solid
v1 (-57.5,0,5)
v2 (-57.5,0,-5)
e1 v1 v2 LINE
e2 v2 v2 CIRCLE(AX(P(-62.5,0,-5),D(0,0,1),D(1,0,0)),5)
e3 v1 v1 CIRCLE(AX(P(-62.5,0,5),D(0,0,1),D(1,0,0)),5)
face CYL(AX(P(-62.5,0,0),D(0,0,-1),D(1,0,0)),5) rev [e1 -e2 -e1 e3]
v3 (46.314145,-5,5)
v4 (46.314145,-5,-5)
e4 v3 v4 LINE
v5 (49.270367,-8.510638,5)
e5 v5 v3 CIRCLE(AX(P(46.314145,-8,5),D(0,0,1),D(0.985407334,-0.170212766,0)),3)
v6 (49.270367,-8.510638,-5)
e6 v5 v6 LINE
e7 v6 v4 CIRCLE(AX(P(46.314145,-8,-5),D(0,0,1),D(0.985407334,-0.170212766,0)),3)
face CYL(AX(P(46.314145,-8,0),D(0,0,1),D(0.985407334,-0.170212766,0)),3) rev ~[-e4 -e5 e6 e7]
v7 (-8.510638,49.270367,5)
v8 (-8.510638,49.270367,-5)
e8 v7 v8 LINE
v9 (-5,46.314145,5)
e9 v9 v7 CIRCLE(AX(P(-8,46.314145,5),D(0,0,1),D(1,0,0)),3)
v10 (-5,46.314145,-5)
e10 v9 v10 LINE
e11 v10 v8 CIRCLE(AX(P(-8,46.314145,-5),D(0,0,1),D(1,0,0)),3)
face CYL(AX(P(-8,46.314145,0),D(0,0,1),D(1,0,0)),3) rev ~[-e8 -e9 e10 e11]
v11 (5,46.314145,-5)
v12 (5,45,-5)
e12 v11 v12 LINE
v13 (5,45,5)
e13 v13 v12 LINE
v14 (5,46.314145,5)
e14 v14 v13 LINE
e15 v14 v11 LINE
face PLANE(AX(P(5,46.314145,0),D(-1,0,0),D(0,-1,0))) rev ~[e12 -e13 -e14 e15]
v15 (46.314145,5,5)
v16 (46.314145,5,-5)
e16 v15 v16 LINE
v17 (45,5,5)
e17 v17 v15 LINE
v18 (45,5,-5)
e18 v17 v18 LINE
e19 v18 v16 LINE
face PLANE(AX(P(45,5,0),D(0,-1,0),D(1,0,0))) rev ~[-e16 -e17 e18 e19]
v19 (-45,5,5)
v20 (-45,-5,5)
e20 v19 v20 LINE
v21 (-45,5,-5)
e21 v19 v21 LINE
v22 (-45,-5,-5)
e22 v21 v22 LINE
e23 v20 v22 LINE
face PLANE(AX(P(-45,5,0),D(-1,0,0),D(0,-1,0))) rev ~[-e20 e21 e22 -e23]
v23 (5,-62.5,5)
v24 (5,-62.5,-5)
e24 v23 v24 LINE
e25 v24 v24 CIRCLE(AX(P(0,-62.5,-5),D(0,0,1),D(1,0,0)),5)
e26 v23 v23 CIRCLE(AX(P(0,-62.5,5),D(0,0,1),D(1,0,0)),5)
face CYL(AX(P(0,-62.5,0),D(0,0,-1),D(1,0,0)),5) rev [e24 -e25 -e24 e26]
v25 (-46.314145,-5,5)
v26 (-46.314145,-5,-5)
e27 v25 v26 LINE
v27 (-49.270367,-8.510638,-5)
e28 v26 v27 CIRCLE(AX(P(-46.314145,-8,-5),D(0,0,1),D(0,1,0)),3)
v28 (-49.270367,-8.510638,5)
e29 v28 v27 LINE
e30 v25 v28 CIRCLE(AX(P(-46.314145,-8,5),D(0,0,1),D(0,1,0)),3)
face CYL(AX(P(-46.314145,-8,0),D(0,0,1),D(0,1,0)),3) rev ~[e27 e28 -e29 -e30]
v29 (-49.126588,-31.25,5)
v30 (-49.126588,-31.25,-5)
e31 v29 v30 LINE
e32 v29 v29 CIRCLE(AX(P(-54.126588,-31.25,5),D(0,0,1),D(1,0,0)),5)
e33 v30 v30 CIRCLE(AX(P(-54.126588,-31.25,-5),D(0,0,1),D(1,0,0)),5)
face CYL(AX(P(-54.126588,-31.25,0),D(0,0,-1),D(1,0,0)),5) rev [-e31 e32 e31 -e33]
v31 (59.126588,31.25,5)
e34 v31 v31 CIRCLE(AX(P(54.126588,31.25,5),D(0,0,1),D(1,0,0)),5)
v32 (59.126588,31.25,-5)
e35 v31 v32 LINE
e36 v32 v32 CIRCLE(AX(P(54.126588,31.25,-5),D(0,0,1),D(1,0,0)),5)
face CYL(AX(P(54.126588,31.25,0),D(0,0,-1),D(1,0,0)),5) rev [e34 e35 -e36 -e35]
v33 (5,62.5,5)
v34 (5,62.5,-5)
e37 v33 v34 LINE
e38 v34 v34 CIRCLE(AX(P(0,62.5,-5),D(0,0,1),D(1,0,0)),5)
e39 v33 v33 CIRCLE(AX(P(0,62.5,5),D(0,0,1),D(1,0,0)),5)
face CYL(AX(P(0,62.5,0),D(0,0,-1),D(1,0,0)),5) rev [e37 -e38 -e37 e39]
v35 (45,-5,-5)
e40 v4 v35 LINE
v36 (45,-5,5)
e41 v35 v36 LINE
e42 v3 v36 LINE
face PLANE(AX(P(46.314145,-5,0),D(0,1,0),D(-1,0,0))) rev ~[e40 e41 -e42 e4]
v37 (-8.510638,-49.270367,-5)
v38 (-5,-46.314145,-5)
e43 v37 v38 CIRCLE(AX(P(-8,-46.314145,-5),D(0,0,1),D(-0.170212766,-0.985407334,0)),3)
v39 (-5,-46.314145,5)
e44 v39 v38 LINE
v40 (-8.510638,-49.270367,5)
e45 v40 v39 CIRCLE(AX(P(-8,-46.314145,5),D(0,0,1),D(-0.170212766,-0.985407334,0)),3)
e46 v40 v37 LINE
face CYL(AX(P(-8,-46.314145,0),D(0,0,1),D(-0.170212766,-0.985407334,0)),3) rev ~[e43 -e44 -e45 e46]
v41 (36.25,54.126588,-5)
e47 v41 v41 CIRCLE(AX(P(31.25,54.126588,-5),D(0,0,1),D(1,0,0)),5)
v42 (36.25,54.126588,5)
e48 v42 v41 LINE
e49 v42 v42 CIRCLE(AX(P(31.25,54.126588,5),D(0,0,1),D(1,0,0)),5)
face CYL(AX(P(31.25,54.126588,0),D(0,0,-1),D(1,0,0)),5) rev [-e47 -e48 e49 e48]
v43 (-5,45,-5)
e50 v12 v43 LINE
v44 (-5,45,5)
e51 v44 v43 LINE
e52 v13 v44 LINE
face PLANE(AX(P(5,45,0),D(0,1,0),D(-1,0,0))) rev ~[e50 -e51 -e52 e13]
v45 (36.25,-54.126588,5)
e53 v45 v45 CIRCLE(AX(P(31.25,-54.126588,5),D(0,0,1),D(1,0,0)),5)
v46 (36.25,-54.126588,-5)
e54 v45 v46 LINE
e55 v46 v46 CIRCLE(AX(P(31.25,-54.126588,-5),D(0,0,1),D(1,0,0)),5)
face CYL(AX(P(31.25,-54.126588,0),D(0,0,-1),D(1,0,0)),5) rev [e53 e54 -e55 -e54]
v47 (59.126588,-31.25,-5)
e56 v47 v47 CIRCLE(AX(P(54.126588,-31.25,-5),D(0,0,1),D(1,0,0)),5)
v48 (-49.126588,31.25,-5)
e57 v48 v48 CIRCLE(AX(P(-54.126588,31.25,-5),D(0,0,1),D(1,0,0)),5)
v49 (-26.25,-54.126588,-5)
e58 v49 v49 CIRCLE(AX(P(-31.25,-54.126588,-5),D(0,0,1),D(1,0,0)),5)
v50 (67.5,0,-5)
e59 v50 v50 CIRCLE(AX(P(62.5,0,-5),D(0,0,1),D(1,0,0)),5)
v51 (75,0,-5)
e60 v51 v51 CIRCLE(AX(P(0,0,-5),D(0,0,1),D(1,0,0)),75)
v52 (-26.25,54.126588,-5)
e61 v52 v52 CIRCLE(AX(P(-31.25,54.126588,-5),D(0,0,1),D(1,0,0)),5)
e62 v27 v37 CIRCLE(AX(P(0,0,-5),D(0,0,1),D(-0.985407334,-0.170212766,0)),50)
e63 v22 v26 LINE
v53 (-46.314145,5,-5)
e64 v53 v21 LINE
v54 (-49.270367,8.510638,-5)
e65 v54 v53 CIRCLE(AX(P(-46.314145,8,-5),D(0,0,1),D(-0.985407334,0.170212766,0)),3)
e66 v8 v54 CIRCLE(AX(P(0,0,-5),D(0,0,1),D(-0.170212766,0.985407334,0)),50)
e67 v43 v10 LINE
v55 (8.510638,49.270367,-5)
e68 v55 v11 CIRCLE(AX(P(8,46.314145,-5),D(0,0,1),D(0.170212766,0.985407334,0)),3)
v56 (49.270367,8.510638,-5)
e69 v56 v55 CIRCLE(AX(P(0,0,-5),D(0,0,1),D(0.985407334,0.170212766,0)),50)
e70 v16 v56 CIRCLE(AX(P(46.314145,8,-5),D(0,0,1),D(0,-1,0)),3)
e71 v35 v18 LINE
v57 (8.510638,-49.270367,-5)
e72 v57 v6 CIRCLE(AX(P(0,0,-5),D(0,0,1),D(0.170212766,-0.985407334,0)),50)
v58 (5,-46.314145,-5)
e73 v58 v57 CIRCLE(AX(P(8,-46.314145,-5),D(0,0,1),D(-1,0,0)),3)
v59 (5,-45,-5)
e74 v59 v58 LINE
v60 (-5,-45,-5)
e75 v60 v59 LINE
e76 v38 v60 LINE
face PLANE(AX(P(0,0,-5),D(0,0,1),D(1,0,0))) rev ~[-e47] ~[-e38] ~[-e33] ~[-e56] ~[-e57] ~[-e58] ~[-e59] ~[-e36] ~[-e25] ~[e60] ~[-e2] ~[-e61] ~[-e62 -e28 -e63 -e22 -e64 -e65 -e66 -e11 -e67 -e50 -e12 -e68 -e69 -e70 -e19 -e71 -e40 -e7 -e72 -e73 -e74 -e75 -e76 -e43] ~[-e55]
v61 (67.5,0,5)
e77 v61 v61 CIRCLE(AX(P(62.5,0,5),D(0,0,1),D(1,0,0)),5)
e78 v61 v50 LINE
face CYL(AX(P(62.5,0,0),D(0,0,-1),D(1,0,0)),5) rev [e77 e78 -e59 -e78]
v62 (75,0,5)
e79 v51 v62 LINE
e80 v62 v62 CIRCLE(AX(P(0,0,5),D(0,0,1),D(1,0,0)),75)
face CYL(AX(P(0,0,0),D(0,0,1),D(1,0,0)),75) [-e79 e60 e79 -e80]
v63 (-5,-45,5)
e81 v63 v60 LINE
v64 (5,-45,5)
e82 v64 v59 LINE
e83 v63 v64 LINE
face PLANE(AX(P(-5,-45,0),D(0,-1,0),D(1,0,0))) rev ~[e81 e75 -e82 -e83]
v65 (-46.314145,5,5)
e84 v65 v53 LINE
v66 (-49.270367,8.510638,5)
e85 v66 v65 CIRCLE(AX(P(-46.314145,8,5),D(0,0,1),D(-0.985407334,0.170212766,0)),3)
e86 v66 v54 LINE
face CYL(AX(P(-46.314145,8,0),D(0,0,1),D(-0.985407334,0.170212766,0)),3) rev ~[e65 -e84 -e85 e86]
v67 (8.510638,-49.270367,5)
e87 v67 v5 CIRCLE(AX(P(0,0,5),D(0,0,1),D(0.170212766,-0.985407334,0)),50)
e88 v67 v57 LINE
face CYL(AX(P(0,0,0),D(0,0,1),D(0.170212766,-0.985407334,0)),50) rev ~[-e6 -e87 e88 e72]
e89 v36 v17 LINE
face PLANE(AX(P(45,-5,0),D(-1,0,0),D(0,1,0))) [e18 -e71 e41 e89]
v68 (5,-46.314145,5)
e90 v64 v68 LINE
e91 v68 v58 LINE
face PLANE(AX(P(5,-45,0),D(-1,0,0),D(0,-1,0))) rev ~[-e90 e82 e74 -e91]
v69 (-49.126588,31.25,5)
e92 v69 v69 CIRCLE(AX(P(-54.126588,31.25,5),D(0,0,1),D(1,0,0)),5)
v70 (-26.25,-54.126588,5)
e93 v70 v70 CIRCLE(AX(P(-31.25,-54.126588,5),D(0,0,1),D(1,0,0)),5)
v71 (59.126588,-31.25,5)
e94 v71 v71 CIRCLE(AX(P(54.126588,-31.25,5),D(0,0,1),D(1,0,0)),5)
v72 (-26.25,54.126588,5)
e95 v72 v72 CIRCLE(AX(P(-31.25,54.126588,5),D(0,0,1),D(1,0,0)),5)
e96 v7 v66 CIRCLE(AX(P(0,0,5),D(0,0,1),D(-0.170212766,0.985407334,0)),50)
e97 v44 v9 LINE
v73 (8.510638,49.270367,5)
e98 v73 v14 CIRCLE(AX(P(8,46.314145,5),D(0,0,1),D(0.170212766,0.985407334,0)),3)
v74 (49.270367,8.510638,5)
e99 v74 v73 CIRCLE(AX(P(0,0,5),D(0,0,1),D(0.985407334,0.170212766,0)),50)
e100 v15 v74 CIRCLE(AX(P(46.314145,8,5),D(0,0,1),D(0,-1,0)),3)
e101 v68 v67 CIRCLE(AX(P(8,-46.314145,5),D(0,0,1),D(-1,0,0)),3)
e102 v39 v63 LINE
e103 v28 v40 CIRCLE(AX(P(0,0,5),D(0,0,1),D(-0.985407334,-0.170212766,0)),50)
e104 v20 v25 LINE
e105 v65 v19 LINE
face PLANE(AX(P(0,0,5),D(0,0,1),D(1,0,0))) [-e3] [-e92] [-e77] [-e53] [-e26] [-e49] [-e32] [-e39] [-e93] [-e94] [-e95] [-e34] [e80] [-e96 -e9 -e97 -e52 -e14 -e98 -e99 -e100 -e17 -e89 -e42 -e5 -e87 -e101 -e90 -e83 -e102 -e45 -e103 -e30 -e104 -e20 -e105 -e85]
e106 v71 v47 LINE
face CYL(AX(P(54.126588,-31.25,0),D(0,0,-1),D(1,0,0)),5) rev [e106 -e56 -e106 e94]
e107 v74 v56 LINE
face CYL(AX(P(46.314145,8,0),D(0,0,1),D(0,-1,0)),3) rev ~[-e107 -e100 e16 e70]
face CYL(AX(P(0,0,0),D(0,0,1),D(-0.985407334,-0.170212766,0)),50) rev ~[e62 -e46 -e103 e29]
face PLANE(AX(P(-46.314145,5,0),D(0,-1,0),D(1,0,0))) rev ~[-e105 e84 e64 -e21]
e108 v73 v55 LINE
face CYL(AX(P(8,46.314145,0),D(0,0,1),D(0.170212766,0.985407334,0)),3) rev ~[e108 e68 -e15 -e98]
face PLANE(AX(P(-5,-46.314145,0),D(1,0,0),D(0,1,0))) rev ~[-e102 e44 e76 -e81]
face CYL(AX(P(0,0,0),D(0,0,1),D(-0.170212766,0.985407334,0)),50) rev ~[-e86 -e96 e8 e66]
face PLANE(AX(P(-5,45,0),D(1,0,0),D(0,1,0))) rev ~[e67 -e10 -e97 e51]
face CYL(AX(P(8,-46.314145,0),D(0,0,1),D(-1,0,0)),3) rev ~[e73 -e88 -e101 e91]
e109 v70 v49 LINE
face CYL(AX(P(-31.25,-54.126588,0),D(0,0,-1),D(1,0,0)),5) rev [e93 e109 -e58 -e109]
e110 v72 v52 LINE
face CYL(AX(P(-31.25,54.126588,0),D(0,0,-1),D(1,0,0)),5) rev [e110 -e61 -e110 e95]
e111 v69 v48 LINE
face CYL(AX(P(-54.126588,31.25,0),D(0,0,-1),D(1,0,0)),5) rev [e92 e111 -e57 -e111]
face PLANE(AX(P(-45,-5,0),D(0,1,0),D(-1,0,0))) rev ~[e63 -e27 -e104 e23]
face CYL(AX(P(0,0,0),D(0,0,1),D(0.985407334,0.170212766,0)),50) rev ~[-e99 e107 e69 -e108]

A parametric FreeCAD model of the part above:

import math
import FreeCAD as App
import Part
import Sketcher
from FreeCAD import Vector
Q = App.Units.Quantity

doc = App.newDocument("Part")
body = doc.addObject("PartDesign::Body", "Body")

# Sketch on XY plane
sketch1 = body.newObject("Sketcher::SketchObject", "Sketch")
sketch1.AttachmentSupport = (doc.getObject("XY_Plane"), [""])
sketch1.MapMode = "FlatFace"
sketch1.addGeometry(Part.Circle(Vector(0, 0, 0), Vector(0, 0, 1), 75), False)
sketch1.addGeometry(Part.Circle(Vector(-31.2, -54.1, 0), Vector(0, 0, 1), 5), False)
sketch1.addGeometry(Part.Circle(Vector(-54.1, -31.2, 0), Vector(0, 0, 1), 5), False)
sketch1.addGeometry(Part.Circle(Vector(0, -62.5, 0), Vector(0, 0, 1), 5), False)
sketch1.addGeometry(Part.Circle(Vector(31.2, -54.1, 0), Vector(0, 0, 1), 5), False)
sketch1.addGeometry(Part.Circle(Vector(54.1, -31.2, 0), Vector(0, 0, 1), 5), False)
sketch1.addGeometry(Part.Circle(Vector(-62.5, 0, 0), Vector(0, 0, 1), 5), False)
sketch1.addGeometry(Part.Circle(Vector(-54.1, 31.2, 0), Vector(0, 0, 1), 5), False)
sketch1.addGeometry(Part.Circle(Vector(-31.2, 54.1, 0), Vector(0, 0, 1), 5), False)
sketch1.addGeometry(Part.LineSegment(Vector(46.3, 5, 0), Vector(45, 5, 0)), False)
sketch1.addGeometry(Part.LineSegment(Vector(45, 5, 0), Vector(45, -5, 0)), False)
sketch1.addGeometry(Part.LineSegment(Vector(45, -5, 0), Vector(46.3, -5, 0)), False)
sketch1.addGeometry(Part.ArcOfCircle(Part.Circle(Vector(46.3, -8, 0), Vector(0, 0, 1), 3), math.radians(-10), math.radians(90)), False)
sketch1.addGeometry(Part.ArcOfCircle(Part.Circle(Vector(0, 0, 0), Vector(0, 0, 1), 50), math.radians(-80), math.radians(-10)), False)
sketch1.addGeometry(Part.ArcOfCircle(Part.Circle(Vector(8, -46.3, 0), Vector(0, 0, 1), 3), math.radians(180), math.radians(280)), False)
sketch1.addGeometry(Part.LineSegment(Vector(5, -46.3, 0), Vector(5, -45, 0)), False)
sketch1.addGeometry(Part.LineSegment(Vector(5, -45, 0), Vector(-5, -45, 0)), False)
sketch1.addGeometry(Part.LineSegment(Vector(-5, -45, 0), Vector(-5, -46.3, 0)), False)
sketch1.addGeometry(Part.ArcOfCircle(Part.Circle(Vector(-8, -46.3, 0), Vector(0, 0, 1), 3), math.radians(-100), math.radians(0)), False)
sketch1.addGeometry(Part.ArcOfCircle(Part.Circle(Vector(0, 0, 0), Vector(0, 0, 1), 50), math.radians(-170), math.radians(-100)), False)
sketch1.addGeometry(Part.ArcOfCircle(Part.Circle(Vector(-46.3, -8, 0), Vector(0, 0, 1), 3), math.radians(90), math.radians(190)), False)
sketch1.addGeometry(Part.LineSegment(Vector(-46.3, -5, 0), Vector(-45, -5, 0)), False)
sketch1.addGeometry(Part.LineSegment(Vector(-45, -5, 0), Vector(-45, 5, 0)), False)
sketch1.addGeometry(Part.LineSegment(Vector(-45, 5, 0), Vector(-46.3, 5, 0)), False)
sketch1.addGeometry(Part.ArcOfCircle(Part.Circle(Vector(-46.3, 8, 0), Vector(0, 0, 1), 3), math.radians(170), math.radians(270)), False)
sketch1.addGeometry(Part.ArcOfCircle(Part.Circle(Vector(0, 0, 0), Vector(0, 0, 1), 50), math.radians(100), math.radians(170)), False)
sketch1.addGeometry(Part.ArcOfCircle(Part.Circle(Vector(-8, 46.3, 0), Vector(0, 0, 1), 3), math.radians(0), math.radians(100)), False)
sketch1.addGeometry(Part.LineSegment(Vector(-5, 46.3, 0), Vector(-5, 45, 0)), False)
sketch1.addGeometry(Part.LineSegment(Vector(-5, 45, 0), Vector(5, 45, 0)), False)
sketch1.addGeometry(Part.LineSegment(Vector(5, 45, 0), Vector(5, 46.3, 0)), False)
sketch1.addGeometry(Part.ArcOfCircle(Part.Circle(Vector(8, 46.3, 0), Vector(0, 0, 1), 3), math.radians(80), math.radians(180)), False)
sketch1.addGeometry(Part.ArcOfCircle(Part.Circle(Vector(0, 0, 0), Vector(0, 0, 1), 50), math.radians(10), math.radians(80)), False)
sketch1.addGeometry(Part.ArcOfCircle(Part.Circle(Vector(46.3, 8, 0), Vector(0, 0, 1), 3), math.radians(-90), math.radians(10)), False)
sketch1.addGeometry(Part.Circle(Vector(62.5, 0, 0), Vector(0, 0, 1), 5), False)
sketch1.addGeometry(Part.Circle(Vector(54.1, 31.2, 0), Vector(0, 0, 1), 5), False)
sketch1.addGeometry(Part.Circle(Vector(0, 62.5, 0), Vector(0, 0, 1), 5), False)
sketch1.addGeometry(Part.Circle(Vector(31.2, 54.1, 0), Vector(0, 0, 1), 5), False)
sketch1.addConstraint(Sketcher.Constraint("Coincident", 9, 2, 10, 1))
sketch1.addConstraint(Sketcher.Constraint("Coincident", 10, 2, 11, 1))
sketch1.addConstraint(Sketcher.Constraint("Tangent", 11, 2, 12, 2))
sketch1.addConstraint(Sketcher.Constraint("Tangent", 12, 1, 13, 2))
sketch1.addConstraint(Sketcher.Constraint("Tangent", 13, 1, 14, 2))
sketch1.addConstraint(Sketcher.Constraint("Tangent", 14, 1, 15, 1))
sketch1.addConstraint(Sketcher.Constraint("Coincident", 15, 2, 16, 1))
sketch1.addConstraint(Sketcher.Constraint("Coincident", 16, 2, 17, 1))
sketch1.addConstraint(Sketcher.Constraint("Tangent", 17, 2, 18, 2))
sketch1.addConstraint(Sketcher.Constraint("Tangent", 18, 1, 19, 2))
sketch1.addConstraint(Sketcher.Constraint("Tangent", 19, 1, 20, 2))
sketch1.addConstraint(Sketcher.Constraint("Tangent", 20, 1, 21, 1))
sketch1.addConstraint(Sketcher.Constraint("Coincident", 21, 2, 22, 1))
sketch1.addConstraint(Sketcher.Constraint("Coincident", 22, 2, 23, 1))
sketch1.addConstraint(Sketcher.Constraint("Tangent", 23, 2, 24, 2))
sketch1.addConstraint(Sketcher.Constraint("Tangent", 24, 1, 25, 2))
sketch1.addConstraint(Sketcher.Constraint("Tangent", 25, 1, 26, 2))
sketch1.addConstraint(Sketcher.Constraint("Tangent", 26, 1, 27, 1))
sketch1.addConstraint(Sketcher.Constraint("Coincident", 27, 2, 28, 1))
sketch1.addConstraint(Sketcher.Constraint("Coincident", 28, 2, 29, 1))
sketch1.addConstraint(Sketcher.Constraint("Tangent", 29, 2, 30, 2))
sketch1.addConstraint(Sketcher.Constraint("Tangent", 30, 1, 31, 2))
sketch1.addConstraint(Sketcher.Constraint("Tangent", 31, 1, 32, 2))
sketch1.addConstraint(Sketcher.Constraint("Tangent", 32, 1, 9, 1))
sketch1.addConstraint(Sketcher.Constraint("Horizontal", 9))
sketch1.addConstraint(Sketcher.Constraint("Vertical", 10))
sketch1.addConstraint(Sketcher.Constraint("Horizontal", 11))
sketch1.addConstraint(Sketcher.Constraint("Vertical", 15))
sketch1.addConstraint(Sketcher.Constraint("Horizontal", 16))
sketch1.addConstraint(Sketcher.Constraint("Vertical", 17))
sketch1.addConstraint(Sketcher.Constraint("Horizontal", 21))
sketch1.addConstraint(Sketcher.Constraint("Vertical", 22))
sketch1.addConstraint(Sketcher.Constraint("Horizontal", 23))
sketch1.addConstraint(Sketcher.Constraint("Vertical", 27))
sketch1.addConstraint(Sketcher.Constraint("Horizontal", 28))
sketch1.addConstraint(Sketcher.Constraint("Vertical", 29))
sketch1.addConstraint(Sketcher.Constraint("Coincident", 0, 3, -1, 1))
sketch1.addConstraint(Sketcher.Constraint("Coincident", 13, 3, -1, 1))
sketch1.addConstraint(Sketcher.Constraint("Coincident", 19, 3, -1, 1))
sketch1.addConstraint(Sketcher.Constraint("Coincident", 25, 3, -1, 1))
sketch1.addConstraint(Sketcher.Constraint("Coincident", 31, 3, -1, 1))
sketch1.addConstraint(Sketcher.Constraint("Equal", 1, 2))
sketch1.addConstraint(Sketcher.Constraint("Equal", 2, 3))
sketch1.addConstraint(Sketcher.Constraint("Equal", 3, 4))
sketch1.addConstraint(Sketcher.Constraint("Equal", 4, 5))
sketch1.addConstraint(Sketcher.Constraint("Equal", 5, 6))
sketch1.addConstraint(Sketcher.Constraint("Equal", 6, 7))
sketch1.addConstraint(Sketcher.Constraint("Equal", 7, 8))
sketch1.addConstraint(Sketcher.Constraint("Equal", 12, 14))
sketch1.addConstraint(Sketcher.Constraint("Equal", 14, 18))
sketch1.addConstraint(Sketcher.Constraint("Equal", 13, 19))
sketch1.addConstraint(Sketcher.Constraint("Equal", 18, 20))
sketch1.addConstraint(Sketcher.Constraint("Equal", 20, 24))
sketch1.addConstraint(Sketcher.Constraint("Equal", 19, 25))
sketch1.addConstraint(Sketcher.Constraint("Equal", 24, 26))
sketch1.addConstraint(Sketcher.Constraint("Equal", 26, 30))
sketch1.addConstraint(Sketcher.Constraint("Equal", 25, 31))
sketch1.addConstraint(Sketcher.Constraint("Equal", 30, 32))
sketch1.addConstraint(Sketcher.Constraint("Equal", 8, 33))
sketch1.addConstraint(Sketcher.Constraint("Equal", 33, 34))
sketch1.addConstraint(Sketcher.Constraint("Equal", 34, 35))
sketch1.addConstraint(Sketcher.Constraint("Equal", 35, 36))
sketch1.addConstraint(Sketcher.Constraint("Symmetric", 5, 3, 7, 3, -1, 1))
sketch1.addConstraint(Sketcher.Constraint("Symmetric", 4, 3, 8, 3, -1, 1))
sketch1.addConstraint(Sketcher.Constraint("Symmetric", 6, 3, 33, 3, -1, 1))
sketch1.addConstraint(Sketcher.Constraint("Symmetric", 2, 3, 34, 3, -1, 1))
sketch1.addConstraint(Sketcher.Constraint("Symmetric", 3, 3, 35, 3, -1, 1))
sketch1.addConstraint(Sketcher.Constraint("Symmetric", 1, 3, 36, 3, -1, 1))
sketch1.addConstraint(Sketcher.Constraint("Symmetric", 9, 2, 21, 2, -1, 1))
sketch1.addConstraint(Sketcher.Constraint("Symmetric", 15, 2, 27, 2, -1, 1))
sketch1.addConstraint(Sketcher.Constraint("Symmetric", 1, 3, 4, 3, -2))
sketch1.addConstraint(Sketcher.Constraint("Symmetric", 2, 3, 5, 3, -2))
sketch1.addConstraint(Sketcher.Constraint("PointOnObject", 3, 3, -2))
sketch1.addConstraint(Sketcher.Constraint("PointOnObject", 6, 3, -1))
sketch1.addConstraint(Sketcher.Constraint("Horizontal", 14, 3, 18, 3))
sketch1.addConstraint(Sketcher.Constraint("Horizontal", 12, 3, 20, 3))
sketch1.addConstraint(Sketcher.Constraint("Horizontal", 26, 3, 30, 3))
sketch1.addConstraint(Sketcher.Constraint("Horizontal", 24, 3, 32, 3))
sketch1.addConstraint(Sketcher.Constraint("Equal", 28, 10))
sketch1.addConstraint(Sketcher.Constraint("Equal", 23, 15))
sketch1.addConstraint(Sketcher.Constraint("Diameter", 0, Q("150 mm")))
sketch1.addConstraint(Sketcher.Constraint("Diameter", 1, Q("10 mm")))
sketch1.addConstraint(Sketcher.Constraint("Radius", 12, Q("3 mm")))
sketch1.addConstraint(Sketcher.Constraint("Radius", 13, Q("50 mm")))
sketch1.addConstraint(Sketcher.Constraint("DistanceX", 16, 2, 16, 1, Q("10 mm")))
sketch1.addConstraint(Sketcher.Constraint("DistanceX", -1, 1, 9, 2, Q("45 mm")))
sketch1.addConstraint(Sketcher.Constraint("DistanceY", 3, 3, -1, 1, Q("62.5 mm")))
sketch1.addConstraint(Sketcher.Constraint("DistanceX", 6, 3, -1, 1, Q("62.5 mm")))
sketch1.addConstraint(Sketcher.Constraint("DistanceX", 1, 3, 4, 3, Q("62.5 mm")))
sketch1.addConstraint(Sketcher.Constraint("DistanceY", 2, 3, 7, 3, Q("62.5 mm")))
sketch1.addConstraint(Sketcher.Constraint("DistanceY", 4, 3, 13, 1, Q("4.856221 mm")))
sketch1.addConstraint(Sketcher.Constraint("DistanceX", 2, 3, 19, 1, Q("4.856221 mm")))
pad1 = body.newObject("PartDesign::Pad", "Pad")
pad1.Profile = sketch1
pad1.Length = 10
pad1.Midplane = True

doc.recompute()
